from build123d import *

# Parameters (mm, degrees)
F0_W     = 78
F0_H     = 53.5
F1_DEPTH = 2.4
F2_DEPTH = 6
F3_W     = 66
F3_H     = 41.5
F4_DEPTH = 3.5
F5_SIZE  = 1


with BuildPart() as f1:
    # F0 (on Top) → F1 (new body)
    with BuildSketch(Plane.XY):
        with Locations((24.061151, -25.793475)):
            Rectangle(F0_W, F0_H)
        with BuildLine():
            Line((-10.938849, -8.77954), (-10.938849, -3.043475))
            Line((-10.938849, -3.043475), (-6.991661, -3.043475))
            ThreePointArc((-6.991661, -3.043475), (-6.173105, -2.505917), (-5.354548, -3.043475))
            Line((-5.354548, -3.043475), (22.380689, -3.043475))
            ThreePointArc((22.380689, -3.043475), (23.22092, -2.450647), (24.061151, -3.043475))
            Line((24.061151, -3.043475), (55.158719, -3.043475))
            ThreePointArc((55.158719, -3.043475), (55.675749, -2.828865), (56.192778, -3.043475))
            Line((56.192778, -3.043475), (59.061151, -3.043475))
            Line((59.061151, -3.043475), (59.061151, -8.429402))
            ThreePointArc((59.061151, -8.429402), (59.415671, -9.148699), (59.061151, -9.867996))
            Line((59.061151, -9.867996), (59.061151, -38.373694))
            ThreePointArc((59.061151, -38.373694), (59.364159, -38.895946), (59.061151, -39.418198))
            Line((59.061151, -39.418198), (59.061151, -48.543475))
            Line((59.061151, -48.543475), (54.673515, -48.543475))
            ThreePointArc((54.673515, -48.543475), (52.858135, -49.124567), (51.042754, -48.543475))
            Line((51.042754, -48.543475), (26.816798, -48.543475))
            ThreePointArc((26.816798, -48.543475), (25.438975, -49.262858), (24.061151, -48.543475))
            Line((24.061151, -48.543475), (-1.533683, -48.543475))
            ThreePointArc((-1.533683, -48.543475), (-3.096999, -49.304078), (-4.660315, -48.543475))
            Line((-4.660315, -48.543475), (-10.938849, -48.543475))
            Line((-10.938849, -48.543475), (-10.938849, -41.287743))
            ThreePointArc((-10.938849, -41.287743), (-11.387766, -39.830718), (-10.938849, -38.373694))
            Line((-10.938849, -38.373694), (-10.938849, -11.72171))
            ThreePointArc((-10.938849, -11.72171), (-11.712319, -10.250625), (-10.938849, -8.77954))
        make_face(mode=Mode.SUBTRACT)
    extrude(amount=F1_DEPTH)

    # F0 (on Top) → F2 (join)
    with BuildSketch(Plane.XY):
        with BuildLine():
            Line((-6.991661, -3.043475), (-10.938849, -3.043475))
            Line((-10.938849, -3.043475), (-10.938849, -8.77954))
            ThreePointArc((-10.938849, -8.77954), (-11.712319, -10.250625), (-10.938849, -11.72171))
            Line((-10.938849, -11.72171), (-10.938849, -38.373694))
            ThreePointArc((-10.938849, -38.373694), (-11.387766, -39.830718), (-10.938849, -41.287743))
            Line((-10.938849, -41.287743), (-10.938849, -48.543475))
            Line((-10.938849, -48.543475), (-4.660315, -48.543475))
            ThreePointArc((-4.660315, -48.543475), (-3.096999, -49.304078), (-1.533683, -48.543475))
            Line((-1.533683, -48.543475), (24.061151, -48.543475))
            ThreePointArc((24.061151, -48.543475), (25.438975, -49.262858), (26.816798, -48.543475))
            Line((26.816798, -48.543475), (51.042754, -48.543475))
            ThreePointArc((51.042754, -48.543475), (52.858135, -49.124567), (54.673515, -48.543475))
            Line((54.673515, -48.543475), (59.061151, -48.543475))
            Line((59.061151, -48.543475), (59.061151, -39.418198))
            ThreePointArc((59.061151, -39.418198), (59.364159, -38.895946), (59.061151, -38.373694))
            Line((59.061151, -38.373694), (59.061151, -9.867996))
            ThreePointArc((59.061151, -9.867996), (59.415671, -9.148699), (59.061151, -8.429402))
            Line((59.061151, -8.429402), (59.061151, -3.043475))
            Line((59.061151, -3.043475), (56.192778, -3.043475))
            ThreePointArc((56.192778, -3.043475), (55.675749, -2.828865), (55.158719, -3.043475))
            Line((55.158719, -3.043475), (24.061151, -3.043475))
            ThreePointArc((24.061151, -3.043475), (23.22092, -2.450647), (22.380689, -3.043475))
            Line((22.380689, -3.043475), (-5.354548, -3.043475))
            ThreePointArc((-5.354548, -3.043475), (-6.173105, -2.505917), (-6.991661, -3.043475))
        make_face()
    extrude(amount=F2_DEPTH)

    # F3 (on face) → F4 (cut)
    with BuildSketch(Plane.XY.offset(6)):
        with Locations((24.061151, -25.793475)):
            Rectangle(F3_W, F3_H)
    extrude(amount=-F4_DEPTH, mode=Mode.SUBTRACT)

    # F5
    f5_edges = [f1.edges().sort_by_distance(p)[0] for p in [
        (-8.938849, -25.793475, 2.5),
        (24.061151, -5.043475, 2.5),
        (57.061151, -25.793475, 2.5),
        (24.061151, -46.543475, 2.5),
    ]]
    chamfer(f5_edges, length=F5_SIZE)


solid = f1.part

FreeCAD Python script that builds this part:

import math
import FreeCAD as App
import Part
import Sketcher
from FreeCAD import Vector
Q = App.Units.Quantity


def edges_at(feature, points):
    """Names of the edges that pass closest to the given points."""
    edges = feature.Shape.Edges
    near = lambda p: min(range(len(edges)), key=lambda i: edges[i].distToShape(Part.Vertex(*p))[0])
    return sorted({f"Edge{near(p) + 1}" for p in points})

doc = App.newDocument("Part")
body = doc.addObject("PartDesign::Body", "Body")

# Sketch on XY plane
sketch1 = body.newObject("Sketcher::SketchObject", "Sketch")
sketch1.AttachmentSupport = (doc.getObject("XY_Plane"), [""])
sketch1.MapMode = "FlatFace"
sketch1.addGeometry([
    Part.LineSegment(Vector(-14.938849, 0.956525, 0), Vector(-14.938849, -52.543475, 0)),  # 0
    Part.LineSegment(Vector(-14.938849, -52.543475, 0), Vector(63.061151, -52.543475, 0)),  # 1
    Part.LineSegment(Vector(63.061151, -52.543475, 0), Vector(63.061151, 0.956525, 0)),  # 2
    Part.LineSegment(Vector(63.061151, 0.956525, 0), Vector(-14.938849, 0.956525, 0)),  # 3
    Part.ArcOfCircle(Part.Circle(Vector(-9.926634, -10.250625, 0), Vector(0, 0, 1), 1.785685), math.radians(124.530829), math.radians(235.469171)),  # 4
    Part.LineSegment(Vector(-10.938849, -8.77954, 0), Vector(-10.938849, -3.043475, 0)),  # 5
    Part.LineSegment(Vector(-10.938849, -3.043475, 0), Vector(-6.991661, -3.043475, 0)),  # 6
    Part.ArcOfCircle(Part.Circle(Vector(-6.173104, -3.397917, 0), Vector(0, 0, 1), 0.892), math.radians(23.413019), math.radians(156.586981)),  # 7
    Part.LineSegment(Vector(-5.354548, -3.043475, 0), Vector(22.380689, -3.043475, 0)),  # 8
    Part.ArcOfCircle(Part.Circle(Vector(23.22092, -3.342502, 0), Vector(0, 0, 1), 0.891855), math.radians(19.589962), math.radians(160.410038)),  # 9
    Part.LineSegment(Vector(24.061151, -3.043475, 0), Vector(55.158719, -3.043475, 0)),  # 10
    Part.ArcOfCircle(Part.Circle(Vector(55.675748, -3.558973, 0), Vector(0, 0, 1), 0.730108), math.radians(44.915016), math.radians(135.084984)),  # 11
    Part.LineSegment(Vector(56.192778, -3.043475, 0), Vector(59.061151, -3.043475, 0)),  # 12
    Part.LineSegment(Vector(59.061151, -3.043475, 0), Vector(59.061151, -8.429402, 0)),  # 13
    Part.ArcOfCircle(Part.Circle(Vector(58.508709, -9.148699, 0), Vector(0, 0, 1), 0.906962), math.radians(-52.474621), math.radians(52.474621)),  # 14
    Part.LineSegment(Vector(59.061151, -9.867996, 0), Vector(59.061151, -38.373694, 0)),  # 15
    Part.ArcOfCircle(Part.Circle(Vector(58.762589, -38.895946, 0), Vector(0, 0, 1), 0.60157), math.radians(-60.244186), math.radians(60.244186)),  # 16
    Part.LineSegment(Vector(59.061151, -39.418198, 0), Vector(59.061151, -48.543475, 0)),  # 17
    Part.LineSegment(Vector(59.061151, -48.543475, 0), Vector(54.673515, -48.543475, 0)),  # 18
    Part.ArcOfCircle(Part.Circle(Vector(52.858134, -45.99832, 0), Vector(0, 0, 1), 3.126247), math.radians(-125.499091), math.radians(-54.500909)),  # 19
    Part.LineSegment(Vector(51.042754, -48.543475, 0), Vector(26.816798, -48.543475, 0)),  # 20
    Part.ArcOfCircle(Part.Circle(Vector(25.438975, -47.583704, 0), Vector(0, 0, 1), 1.679154), math.radians(-145.139518), math.radians(-34.860482)),  # 21
    Part.LineSegment(Vector(24.061151, -48.543475, 0), Vector(-1.533683, -48.543475, 0)),  # 22
    Part.ArcOfCircle(Part.Circle(Vector(-3.096999, -47.317185, 0), Vector(0, 0, 1), 1.986893), math.radians(-141.888793), math.radians(-38.111207)),  # 23
    Part.LineSegment(Vector(-4.660315, -48.543475, 0), Vector(-10.938849, -48.543475, 0)),  # 24
    Part.LineSegment(Vector(-10.938849, -48.543475, 0), Vector(-10.938849, -41.287743, 0)),  # 25
    Part.ArcOfCircle(Part.Circle(Vector(-8.798817, -39.830719, 0), Vector(0, 0, 1), 2.588949), math.radians(145.751313), math.radians(214.248687)),  # 26
    Part.LineSegment(Vector(-10.938849, -38.373694, 0), Vector(-10.938849, -11.72171, 0)),  # 27
], False)
sketch1.addConstraint([
    Sketcher.Constraint("Coincident", 0, 2, 1, 1),
    Sketcher.Constraint("Coincident", 1, 2, 2, 1),
    Sketcher.Constraint("Coincident", 2, 2, 3, 1),
    Sketcher.Constraint("Coincident", 3, 2, 0, 1),
    Sketcher.Constraint("Coincident", 4, 1, 5, 1),
    Sketcher.Constraint("Coincident", 5, 2, 6, 1),
    Sketcher.Constraint("Coincident", 6, 2, 7, 2),
    Sketcher.Constraint("Coincident", 7, 1, 8, 1),
    Sketcher.Constraint("Coincident", 8, 2, 9, 2),
    Sketcher.Constraint("Coincident", 9, 1, 10, 1),
    Sketcher.Constraint("Coincident", 10, 2, 11, 2),
    Sketcher.Constraint("Coincident", 11, 1, 12, 1),
    Sketcher.Constraint("Coincident", 12, 2, 13, 1),
    Sketcher.Constraint("Coincident", 13, 2, 14, 2),
    Sketcher.Constraint("Coincident", 14, 1, 15, 1),
    Sketcher.Constraint("Coincident", 15, 2, 16, 2),
    Sketcher.Constraint("Coincident", 16, 1, 17, 1),
    Sketcher.Constraint("Coincident", 17, 2, 18, 1),
    Sketcher.Constraint("Coincident", 18, 2, 19, 2),
    Sketcher.Constraint("Coincident", 19, 1, 20, 1),
    Sketcher.Constraint("Coincident", 20, 2, 21, 2),
    Sketcher.Constraint("Coincident", 21, 1, 22, 1),
    Sketcher.Constraint("Coincident", 22, 2, 23, 2),
    Sketcher.Constraint("Coincident", 23, 1, 24, 1),
    Sketcher.Constraint("Coincident", 24, 2, 25, 1),
    Sketcher.Constraint("Coincident", 25, 2, 26, 2),
    Sketcher.Constraint("Coincident", 26, 1, 27, 1),
    Sketcher.Constraint("Coincident", 27, 2, 4, 2),
    Sketcher.Constraint("Vertical", 0),
    Sketcher.Constraint("Horizontal", 1),
    Sketcher.Constraint("Vertical", 2),
    Sketcher.Constraint("Horizontal", 3),
    Sketcher.Constraint("Vertical", 5),
    Sketcher.Constraint("Horizontal", 6),
    Sketcher.Constraint("Horizontal", 8),
    Sketcher.Constraint("Horizontal", 10),
    Sketcher.Constraint("Horizontal", 12),
    Sketcher.Constraint("Vertical", 13),
    Sketcher.Constraint("Vertical", 15),
    Sketcher.Constraint("Vertical", 17),
    Sketcher.Constraint("Horizontal", 18),
    Sketcher.Constraint("Horizontal", 20),
    Sketcher.Constraint("Horizontal", 22),
    Sketcher.Constraint("Horizontal", 24),
    Sketcher.Constraint("Vertical", 25),
    Sketcher.Constraint("Vertical", 27),
    Sketcher.Constraint("Horizontal", 6, 2, 7, 1),
    Sketcher.Constraint("Horizontal", 8, 2, 9, 1),
    Sketcher.Constraint("Horizontal", 10, 2, 11, 1),
    Sketcher.Constraint("Horizontal", 18, 2, 19, 1),
    Sketcher.Constraint("Horizontal", 20, 2, 21, 1),
    Sketcher.Constraint("Horizontal", 22, 2, 23, 1),
    Sketcher.Constraint("Horizontal", 15, 2, 26, 1),
    Sketcher.Constraint("Vertical", 13, 2, 14, 1),
    Sketcher.Constraint("Vertical", 15, 2, 16, 1),
    Sketcher.Constraint("Vertical", 9, 1, 21, 1),
    Sketcher.Constraint("Vertical", 5, 2, 24, 2),
    Sketcher.Constraint("Vertical", 25, 2, 26, 1),
    Sketcher.Constraint("DistanceX", 1, 1, 1, 2, Q("78 mm")),
    Sketcher.Constraint("DistanceY", 0, 2, 0, 1, Q("53.5 mm")),
    Sketcher.Constraint("Radius", 7, Q("0.892 mm")),
    Sketcher.Constraint("DistanceX", 3, 2, 4, 1, Q("4 mm")),
    Sketcher.Constraint("DistanceY", 5, 2, 3, 2, Q("4 mm")),
    Sketcher.Constraint("DistanceX", 12, 2, 2, 2, Q("4 mm")),
    Sketcher.Constraint("DistanceY", 1, 2, 17, 2, Q("4 mm")),
    Sketcher.Constraint("Radius", 16, Q("0.60157 mm")),
    Sketcher.Constraint("Radius", 26, Q("2.588949 mm")),
    Sketcher.Constraint("DistanceY", 15, 2, 15, 1, Q("28.505698 mm")),
    Sketcher.Constraint("DistanceX", 23, 3, -1, 1, Q("3.096999 mm")),
    Sketcher.Constraint("Radius", 4, Q("1.785685 mm")),
    Sketcher.Constraint("Radius", 9, Q("0.891855 mm")),
    Sketcher.Constraint("Radius", 11, Q("0.730108 mm")),
    Sketcher.Constraint("Radius", 14, Q("0.906962 mm")),
    Sketcher.Constraint("Radius", 19, Q("3.126247 mm")),
    Sketcher.Constraint("Radius", 21, Q("1.679154 mm")),
    Sketcher.Constraint("Radius", 23, Q("1.986893 mm")),
    Sketcher.Constraint("DistanceY", 9, 3, -1, 1, Q("3.342502 mm")),
    Sketcher.Constraint("DistanceY", 14, 3, -1, 1, Q("9.148699 mm")),
    Sketcher.Constraint("DistanceY", 16, 1, -1, 1, Q("39.418198 mm")),
    Sketcher.Constraint("DistanceY", 26, 3, 7, 3, Q("36.432802 mm")),
    Sketcher.Constraint("DistanceX", 5, 2, 7, 1, Q("5.584301 mm")),
    Sketcher.Constraint("DistanceX", 7, 1, 9, 1, Q("29.415699 mm")),
    Sketcher.Constraint("DistanceY", 11, 3, 10, 2, Q("0.515498 mm")),
    Sketcher.Constraint("DistanceX", 9, 3, 10, 2, Q("31.937799 mm")),
    Sketcher.Constraint("DistanceX", 26, 3, 23, 1, Q("4.138502 mm")),
    Sketcher.Constraint("DistanceX", 6, 1, 6, 2, Q("3.947188 mm")),
    Sketcher.Constraint("DistanceX", 8, 1, 8, 2, Q("27.735237 mm")),
    Sketcher.Constraint("DistanceX", 18, 2, 18, 1, Q("4.387636 mm")),
    Sketcher.Constraint("DistanceX", 20, 2, 20, 1, Q("24.225956 mm")),
    Sketcher.Constraint("DistanceX", 22, 2, 22, 1, Q("25.594834 mm")),
    Sketcher.Constraint("DistanceX", 24, 2, 24, 1, Q("6.278534 mm")),
    Sketcher.Constraint("DistanceY", 5, 1, 5, 2, Q("5.736065 mm")),
    Sketcher.Constraint("DistanceY", 27, 1, 27, 2, Q("26.651984 mm")),
    Sketcher.Constraint("DistanceY", 19, 3, -1, 1, Q("45.99832 mm")),
])
pad1 = body.newObject("PartDesign::Pad", "Pad")
pad1.Profile = sketch1
pad1.Length = 2.4

# Sketch on XY plane
sketch2 = body.newObject("Sketcher::SketchObject", "Sketch001")
sketch2.AttachmentSupport = (doc.getObject("XY_Plane"), [""])
sketch2.MapMode = "FlatFace"
sketch2.addGeometry([
    Part.LineSegment(Vector(-6.991661, -3.043475, 0), Vector(-10.938849, -3.043475, 0)),  # 0
    Part.LineSegment(Vector(-10.938849, -3.043475, 0), Vector(-10.938849, -8.77954, 0)),  # 1
    Part.ArcOfCircle(Part.Circle(Vector(-9.926634, -10.250625, 0), Vector(0, 0, 1), 1.785685), math.radians(124.530829), math.radians(235.469171)),  # 2
    Part.LineSegment(Vector(-10.938849, -11.72171, 0), Vector(-10.938849, -38.373694, 0)),  # 3
    Part.ArcOfCircle(Part.Circle(Vector(-8.798817, -39.830719, 0), Vector(0, 0, 1), 2.588949), math.radians(145.751313), math.radians(214.248687)),  # 4
    Part.LineSegment(Vector(-10.938849, -41.287743, 0), Vector(-10.938849, -48.543475, 0)),  # 5
    Part.LineSegment(Vector(-10.938849, -48.543475, 0), Vector(-4.660315, -48.543475, 0)),  # 6
    Part.ArcOfCircle(Part.Circle(Vector(-3.096999, -47.317185, 0), Vector(0, 0, 1), 1.986893), math.radians(-141.888793), math.radians(-38.111207)),  # 7
    Part.LineSegment(Vector(-1.533683, -48.543475, 0), Vector(24.061151, -48.543475, 0)),  # 8
    Part.ArcOfCircle(Part.Circle(Vector(25.438975, -47.583704, 0), Vector(0, 0, 1), 1.679154), math.radians(-145.139518), math.radians(-34.860482)),  # 9
    Part.LineSegment(Vector(26.816798, -48.543475, 0), Vector(51.042754, -48.543475, 0)),  # 10
    Part.ArcOfCircle(Part.Circle(Vector(52.858134, -45.99832, 0), Vector(0, 0, 1), 3.126247), math.radians(-125.499091), math.radians(-54.500909)),  # 11
    Part.LineSegment(Vector(54.673515, -48.543475, 0), Vector(59.061151, -48.543475, 0)),  # 12
    Part.LineSegment(Vector(59.061151, -48.543475, 0), Vector(59.061151, -39.418198, 0)),  # 13
    Part.ArcOfCircle(Part.Circle(Vector(58.762589, -38.895946, 0), Vector(0, 0, 1), 0.60157), math.radians(-60.244186), math.radians(60.244186)),  # 14
    Part.LineSegment(Vector(59.061151, -38.373694, 0), Vector(59.061151, -9.867996, 0)),  # 15
    Part.ArcOfCircle(Part.Circle(Vector(58.508709, -9.148699, 0), Vector(0, 0, 1), 0.906962), math.radians(-52.474621), math.radians(52.474621)),  # 16
    Part.LineSegment(Vector(59.061151, -8.429402, 0), Vector(59.061151, -3.043475, 0)),  # 17
    Part.LineSegment(Vector(59.061151, -3.043475, 0), Vector(56.192778, -3.043475, 0)),  # 18
    Part.ArcOfCircle(Part.Circle(Vector(55.675748, -3.558973, 0), Vector(0, 0, 1), 0.730108), math.radians(44.915016), math.radians(135.084984)),  # 19
    Part.LineSegment(Vector(55.158719, -3.043475, 0), Vector(24.061151, -3.043475, 0)),  # 20
    Part.ArcOfCircle(Part.Circle(Vector(23.22092, -3.342502, 0), Vector(0, 0, 1), 0.891855), math.radians(19.589962), math.radians(160.410038)),  # 21
    Part.LineSegment(Vector(22.380689, -3.043475, 0), Vector(-5.354548, -3.043475, 0)),  # 22
    Part.ArcOfCircle(Part.Circle(Vector(-6.173104, -3.397917, 0), Vector(0, 0, 1), 0.892), math.radians(23.413019), math.radians(156.586981)),  # 23
], False)
sketch2.addConstraint([
    Sketcher.Constraint("Coincident", 0, 2, 1, 1),
    Sketcher.Constraint("Coincident", 1, 2, 2, 1),
    Sketcher.Constraint("Coincident", 2, 2, 3, 1),
    Sketcher.Constraint("Coincident", 3, 2, 4, 1),
    Sketcher.Constraint("Coincident", 4, 2, 5, 1),
    Sketcher.Constraint("Coincident", 5, 2, 6, 1),
    Sketcher.Constraint("Coincident", 6, 2, 7, 1),
    Sketcher.Constraint("Coincident", 7, 2, 8, 1),
    Sketcher.Constraint("Coincident", 8, 2, 9, 1),
    Sketcher.Constraint("Coincident", 9, 2, 10, 1),
    Sketcher.Constraint("Coincident", 10, 2, 11, 1),
    Sketcher.Constraint("Coincident", 11, 2, 12, 1),
    Sketcher.Constraint("Coincident", 12, 2, 13, 1),
    Sketcher.Constraint("Coincident", 13, 2, 14, 1),
    Sketcher.Constraint("Coincident", 14, 2, 15, 1),
    Sketcher.Constraint("Coincident", 15, 2, 16, 1),
    Sketcher.Constraint("Coincident", 16, 2, 17, 1),
    Sketcher.Constraint("Coincident", 17, 2, 18, 1),
    Sketcher.Constraint("Coincident", 18, 2, 19, 1),
    Sketcher.Constraint("Coincident", 19, 2, 20, 1),
    Sketcher.Constraint("Coincident", 20, 2, 21, 1),
    Sketcher.Constraint("Coincident", 21, 2, 22, 1),
    Sketcher.Constraint("Coincident", 22, 2, 23, 1),
    Sketcher.Constraint("Coincident", 23, 2, 0, 1),
    Sketcher.Constraint("Horizontal", 0),
    Sketcher.Constraint("Vertical", 1),
    Sketcher.Constraint("Vertical", 3),
    Sketcher.Constraint("Vertical", 5),
    Sketcher.Constraint("Horizontal", 6),
    Sketcher.Constraint("Horizontal", 8),
    Sketcher.Constraint("Horizontal", 10),
    Sketcher.Constraint("Horizontal", 12),
    Sketcher.Constraint("Vertical", 13),
    Sketcher.Constraint("Vertical", 15),
    Sketcher.Constraint("Vertical", 17),
    Sketcher.Constraint("Horizontal", 18),
    Sketcher.Constraint("Horizontal", 20),
    Sketcher.Constraint("Horizontal", 22),
    Sketcher.Constraint("Horizontal", 6, 2, 7, 2),
    Sketcher.Constraint("Horizontal", 8, 2, 9, 2),
    Sketcher.Constraint("Horizontal", 10, 2, 11, 2),
    Sketcher.Constraint("Horizontal", 3, 2, 14, 2),
    Sketcher.Constraint("Horizontal", 0, 2, 17, 2),
    Sketcher.Constraint("Horizontal", 18, 2, 19, 2),
    Sketcher.Constraint("Horizontal", 20, 2, 21, 2),
    Sketcher.Constraint("Vertical", 1, 2, 2, 2),
    Sketcher.Constraint("Vertical", 3, 2, 4, 2),
    Sketcher.Constraint("Vertical", 13, 2, 14, 2),
    Sketcher.Constraint("Vertical", 15, 2, 16, 2),
    Sketcher.Constraint("Vertical", 8, 2, 20, 2),
    Sketcher.Constraint("Radius", 23, Q("0.892 mm")),
    Sketcher.Constraint("Radius", 4, Q("2.588949 mm")),
    Sketcher.Constraint("Radius", 14, Q("0.60157 mm")),
    Sketcher.Constraint("DistanceY", 15, 1, 15, 2, Q("28.505698 mm")),
    Sketcher.Constraint("DistanceX", 7, 3, -1, 1, Q("3.096999 mm")),
    Sketcher.Constraint("Radius", 2, Q("1.785685 mm")),
    Sketcher.Constraint("Radius", 7, Q("1.986893 mm")),
    Sketcher.Constraint("Radius", 9, Q("1.679154 mm")),
    Sketcher.Constraint("Radius", 11, Q("3.126247 mm")),
    Sketcher.Constraint("Radius", 16, Q("0.906962 mm")),
    Sketcher.Constraint("Radius", 19, Q("0.730108 mm")),
    Sketcher.Constraint("Radius", 21, Q("0.891855 mm")),
    Sketcher.Constraint("DistanceY", 16, 3, -1, 1, Q("9.148699 mm")),
    Sketcher.Constraint("DistanceY", 21, 3, -1, 1, Q("3.342502 mm")),
    Sketcher.Constraint("DistanceX", -1, 1, 9, 2, Q("26.816798 mm")),
    Sketcher.Constraint("DistanceY", 11, 3, 4, 3, Q("6.167601 mm")),
    Sketcher.Constraint("DistanceY", 4, 3, 23, 3, Q("36.432802 mm")),
    Sketcher.Constraint("DistanceX", 4, 3, 6, 2, Q("4.138502 mm")),
    Sketcher.Constraint("DistanceY", 13, 2, 15, 2, Q("29.550202 mm")),
    Sketcher.Constraint("DistanceY", 19, 3, 17, 2, Q("0.515498 mm")),
    Sketcher.Constraint("DistanceX", 0, 2, 22, 2, Q("5.584301 mm")),
    Sketcher.Constraint("DistanceX", 0, 2, 0, 1, Q("3.947188 mm")),
    Sketcher.Constraint("DistanceX", 6, 1, 6, 2, Q("6.278534 mm")),
    Sketcher.Constraint("DistanceX", 8, 1, 8, 2, Q("25.594834 mm")),
    Sketcher.Constraint("DistanceX", 10, 1, 10, 2, Q("24.225956 mm")),
    Sketcher.Constraint("DistanceX", 12, 1, 12, 2, Q("4.387636 mm")),
    Sketcher.Constraint("DistanceX", 18, 2, 18, 1, Q("2.868373 mm")),
    Sketcher.Constraint("DistanceX", 20, 2, 20, 1, Q("31.097568 mm")),
    Sketcher.Constraint("DistanceX", 22, 2, 22, 1, Q("27.735237 mm")),
    Sketcher.Constraint("DistanceY", 1, 2, 1, 1, Q("5.736065 mm")),
    Sketcher.Constraint("DistanceY", 3, 2, 3, 1, Q("26.651984 mm")),
    Sketcher.Constraint("DistanceY", 5, 2, 5, 1, Q("7.255732 mm")),
])
pad2 = body.newObject("PartDesign::Pad", "Pad001")
pad2.Profile = sketch2
pad2.Length = 6

# Sketch on XY plane
sketch3 = body.newObject("Sketcher::SketchObject", "Sketch002")
sketch3.AttachmentSupport = (doc.getObject("XY_Plane"), [""])
sketch3.MapMode = "FlatFace"
sketch3.AttachmentOffset = App.Placement(Vector(0, 0, 6), App.Rotation())
sketch3.addGeometry([
    Part.LineSegment(Vector(-8.938849, -5.043475, 0), Vector(-8.938849, -46.543475, 0)),
    Part.LineSegment(Vector(-8.938849, -46.543475, 0), Vector(57.061151, -46.543475, 0)),
    Part.LineSegment(Vector(57.061151, -46.543475, 0), Vector(57.061151, -5.043475, 0)),
    Part.LineSegment(Vector(57.061151, -5.043475, 0), Vector(-8.938849, -5.043475, 0)),
], False)
sketch3.addConstraint([
    Sketcher.Constraint("Coincident", 0, 2, 1, 1),
    Sketcher.Constraint("Coincident", 1, 2, 2, 1),
    Sketcher.Constraint("Coincident", 2, 2, 3, 1),
    Sketcher.Constraint("Coincident", 3, 2, 0, 1),
    Sketcher.Constraint("Vertical", 0),
    Sketcher.Constraint("Horizontal", 1),
    Sketcher.Constraint("Vertical", 2),
    Sketcher.Constraint("Horizontal", 3),
    Sketcher.Constraint("DistanceX", 1, 1, 1, 2, Q("66 mm")),
    Sketcher.Constraint("DistanceY", 0, 2, 0, 1, Q("41.5 mm")),
    Sketcher.Constraint("DistanceX", 0, 2, -1, 1, Q("8.938849 mm")),
    Sketcher.Constraint("DistanceY", 0, 2, -1, 1, Q("46.543475 mm")),
])
pocket1 = body.newObject("PartDesign::Pocket", "Pocket")
pocket1.Profile = sketch3
pocket1.Length = 3.5
doc.recompute()

chamfer = body.newObject("PartDesign::Chamfer", "Chamfer")
chamfer.Base = (pocket1, edges_at(pocket1, [
    (-8.939, -25.793, 2.5),
    (24.061, -5.043, 2.5),
    (57.061, -25.793, 2.5),
    (24.061, -46.543, 2.5),
]))
chamfer.Size = 1

doc.recompute()
